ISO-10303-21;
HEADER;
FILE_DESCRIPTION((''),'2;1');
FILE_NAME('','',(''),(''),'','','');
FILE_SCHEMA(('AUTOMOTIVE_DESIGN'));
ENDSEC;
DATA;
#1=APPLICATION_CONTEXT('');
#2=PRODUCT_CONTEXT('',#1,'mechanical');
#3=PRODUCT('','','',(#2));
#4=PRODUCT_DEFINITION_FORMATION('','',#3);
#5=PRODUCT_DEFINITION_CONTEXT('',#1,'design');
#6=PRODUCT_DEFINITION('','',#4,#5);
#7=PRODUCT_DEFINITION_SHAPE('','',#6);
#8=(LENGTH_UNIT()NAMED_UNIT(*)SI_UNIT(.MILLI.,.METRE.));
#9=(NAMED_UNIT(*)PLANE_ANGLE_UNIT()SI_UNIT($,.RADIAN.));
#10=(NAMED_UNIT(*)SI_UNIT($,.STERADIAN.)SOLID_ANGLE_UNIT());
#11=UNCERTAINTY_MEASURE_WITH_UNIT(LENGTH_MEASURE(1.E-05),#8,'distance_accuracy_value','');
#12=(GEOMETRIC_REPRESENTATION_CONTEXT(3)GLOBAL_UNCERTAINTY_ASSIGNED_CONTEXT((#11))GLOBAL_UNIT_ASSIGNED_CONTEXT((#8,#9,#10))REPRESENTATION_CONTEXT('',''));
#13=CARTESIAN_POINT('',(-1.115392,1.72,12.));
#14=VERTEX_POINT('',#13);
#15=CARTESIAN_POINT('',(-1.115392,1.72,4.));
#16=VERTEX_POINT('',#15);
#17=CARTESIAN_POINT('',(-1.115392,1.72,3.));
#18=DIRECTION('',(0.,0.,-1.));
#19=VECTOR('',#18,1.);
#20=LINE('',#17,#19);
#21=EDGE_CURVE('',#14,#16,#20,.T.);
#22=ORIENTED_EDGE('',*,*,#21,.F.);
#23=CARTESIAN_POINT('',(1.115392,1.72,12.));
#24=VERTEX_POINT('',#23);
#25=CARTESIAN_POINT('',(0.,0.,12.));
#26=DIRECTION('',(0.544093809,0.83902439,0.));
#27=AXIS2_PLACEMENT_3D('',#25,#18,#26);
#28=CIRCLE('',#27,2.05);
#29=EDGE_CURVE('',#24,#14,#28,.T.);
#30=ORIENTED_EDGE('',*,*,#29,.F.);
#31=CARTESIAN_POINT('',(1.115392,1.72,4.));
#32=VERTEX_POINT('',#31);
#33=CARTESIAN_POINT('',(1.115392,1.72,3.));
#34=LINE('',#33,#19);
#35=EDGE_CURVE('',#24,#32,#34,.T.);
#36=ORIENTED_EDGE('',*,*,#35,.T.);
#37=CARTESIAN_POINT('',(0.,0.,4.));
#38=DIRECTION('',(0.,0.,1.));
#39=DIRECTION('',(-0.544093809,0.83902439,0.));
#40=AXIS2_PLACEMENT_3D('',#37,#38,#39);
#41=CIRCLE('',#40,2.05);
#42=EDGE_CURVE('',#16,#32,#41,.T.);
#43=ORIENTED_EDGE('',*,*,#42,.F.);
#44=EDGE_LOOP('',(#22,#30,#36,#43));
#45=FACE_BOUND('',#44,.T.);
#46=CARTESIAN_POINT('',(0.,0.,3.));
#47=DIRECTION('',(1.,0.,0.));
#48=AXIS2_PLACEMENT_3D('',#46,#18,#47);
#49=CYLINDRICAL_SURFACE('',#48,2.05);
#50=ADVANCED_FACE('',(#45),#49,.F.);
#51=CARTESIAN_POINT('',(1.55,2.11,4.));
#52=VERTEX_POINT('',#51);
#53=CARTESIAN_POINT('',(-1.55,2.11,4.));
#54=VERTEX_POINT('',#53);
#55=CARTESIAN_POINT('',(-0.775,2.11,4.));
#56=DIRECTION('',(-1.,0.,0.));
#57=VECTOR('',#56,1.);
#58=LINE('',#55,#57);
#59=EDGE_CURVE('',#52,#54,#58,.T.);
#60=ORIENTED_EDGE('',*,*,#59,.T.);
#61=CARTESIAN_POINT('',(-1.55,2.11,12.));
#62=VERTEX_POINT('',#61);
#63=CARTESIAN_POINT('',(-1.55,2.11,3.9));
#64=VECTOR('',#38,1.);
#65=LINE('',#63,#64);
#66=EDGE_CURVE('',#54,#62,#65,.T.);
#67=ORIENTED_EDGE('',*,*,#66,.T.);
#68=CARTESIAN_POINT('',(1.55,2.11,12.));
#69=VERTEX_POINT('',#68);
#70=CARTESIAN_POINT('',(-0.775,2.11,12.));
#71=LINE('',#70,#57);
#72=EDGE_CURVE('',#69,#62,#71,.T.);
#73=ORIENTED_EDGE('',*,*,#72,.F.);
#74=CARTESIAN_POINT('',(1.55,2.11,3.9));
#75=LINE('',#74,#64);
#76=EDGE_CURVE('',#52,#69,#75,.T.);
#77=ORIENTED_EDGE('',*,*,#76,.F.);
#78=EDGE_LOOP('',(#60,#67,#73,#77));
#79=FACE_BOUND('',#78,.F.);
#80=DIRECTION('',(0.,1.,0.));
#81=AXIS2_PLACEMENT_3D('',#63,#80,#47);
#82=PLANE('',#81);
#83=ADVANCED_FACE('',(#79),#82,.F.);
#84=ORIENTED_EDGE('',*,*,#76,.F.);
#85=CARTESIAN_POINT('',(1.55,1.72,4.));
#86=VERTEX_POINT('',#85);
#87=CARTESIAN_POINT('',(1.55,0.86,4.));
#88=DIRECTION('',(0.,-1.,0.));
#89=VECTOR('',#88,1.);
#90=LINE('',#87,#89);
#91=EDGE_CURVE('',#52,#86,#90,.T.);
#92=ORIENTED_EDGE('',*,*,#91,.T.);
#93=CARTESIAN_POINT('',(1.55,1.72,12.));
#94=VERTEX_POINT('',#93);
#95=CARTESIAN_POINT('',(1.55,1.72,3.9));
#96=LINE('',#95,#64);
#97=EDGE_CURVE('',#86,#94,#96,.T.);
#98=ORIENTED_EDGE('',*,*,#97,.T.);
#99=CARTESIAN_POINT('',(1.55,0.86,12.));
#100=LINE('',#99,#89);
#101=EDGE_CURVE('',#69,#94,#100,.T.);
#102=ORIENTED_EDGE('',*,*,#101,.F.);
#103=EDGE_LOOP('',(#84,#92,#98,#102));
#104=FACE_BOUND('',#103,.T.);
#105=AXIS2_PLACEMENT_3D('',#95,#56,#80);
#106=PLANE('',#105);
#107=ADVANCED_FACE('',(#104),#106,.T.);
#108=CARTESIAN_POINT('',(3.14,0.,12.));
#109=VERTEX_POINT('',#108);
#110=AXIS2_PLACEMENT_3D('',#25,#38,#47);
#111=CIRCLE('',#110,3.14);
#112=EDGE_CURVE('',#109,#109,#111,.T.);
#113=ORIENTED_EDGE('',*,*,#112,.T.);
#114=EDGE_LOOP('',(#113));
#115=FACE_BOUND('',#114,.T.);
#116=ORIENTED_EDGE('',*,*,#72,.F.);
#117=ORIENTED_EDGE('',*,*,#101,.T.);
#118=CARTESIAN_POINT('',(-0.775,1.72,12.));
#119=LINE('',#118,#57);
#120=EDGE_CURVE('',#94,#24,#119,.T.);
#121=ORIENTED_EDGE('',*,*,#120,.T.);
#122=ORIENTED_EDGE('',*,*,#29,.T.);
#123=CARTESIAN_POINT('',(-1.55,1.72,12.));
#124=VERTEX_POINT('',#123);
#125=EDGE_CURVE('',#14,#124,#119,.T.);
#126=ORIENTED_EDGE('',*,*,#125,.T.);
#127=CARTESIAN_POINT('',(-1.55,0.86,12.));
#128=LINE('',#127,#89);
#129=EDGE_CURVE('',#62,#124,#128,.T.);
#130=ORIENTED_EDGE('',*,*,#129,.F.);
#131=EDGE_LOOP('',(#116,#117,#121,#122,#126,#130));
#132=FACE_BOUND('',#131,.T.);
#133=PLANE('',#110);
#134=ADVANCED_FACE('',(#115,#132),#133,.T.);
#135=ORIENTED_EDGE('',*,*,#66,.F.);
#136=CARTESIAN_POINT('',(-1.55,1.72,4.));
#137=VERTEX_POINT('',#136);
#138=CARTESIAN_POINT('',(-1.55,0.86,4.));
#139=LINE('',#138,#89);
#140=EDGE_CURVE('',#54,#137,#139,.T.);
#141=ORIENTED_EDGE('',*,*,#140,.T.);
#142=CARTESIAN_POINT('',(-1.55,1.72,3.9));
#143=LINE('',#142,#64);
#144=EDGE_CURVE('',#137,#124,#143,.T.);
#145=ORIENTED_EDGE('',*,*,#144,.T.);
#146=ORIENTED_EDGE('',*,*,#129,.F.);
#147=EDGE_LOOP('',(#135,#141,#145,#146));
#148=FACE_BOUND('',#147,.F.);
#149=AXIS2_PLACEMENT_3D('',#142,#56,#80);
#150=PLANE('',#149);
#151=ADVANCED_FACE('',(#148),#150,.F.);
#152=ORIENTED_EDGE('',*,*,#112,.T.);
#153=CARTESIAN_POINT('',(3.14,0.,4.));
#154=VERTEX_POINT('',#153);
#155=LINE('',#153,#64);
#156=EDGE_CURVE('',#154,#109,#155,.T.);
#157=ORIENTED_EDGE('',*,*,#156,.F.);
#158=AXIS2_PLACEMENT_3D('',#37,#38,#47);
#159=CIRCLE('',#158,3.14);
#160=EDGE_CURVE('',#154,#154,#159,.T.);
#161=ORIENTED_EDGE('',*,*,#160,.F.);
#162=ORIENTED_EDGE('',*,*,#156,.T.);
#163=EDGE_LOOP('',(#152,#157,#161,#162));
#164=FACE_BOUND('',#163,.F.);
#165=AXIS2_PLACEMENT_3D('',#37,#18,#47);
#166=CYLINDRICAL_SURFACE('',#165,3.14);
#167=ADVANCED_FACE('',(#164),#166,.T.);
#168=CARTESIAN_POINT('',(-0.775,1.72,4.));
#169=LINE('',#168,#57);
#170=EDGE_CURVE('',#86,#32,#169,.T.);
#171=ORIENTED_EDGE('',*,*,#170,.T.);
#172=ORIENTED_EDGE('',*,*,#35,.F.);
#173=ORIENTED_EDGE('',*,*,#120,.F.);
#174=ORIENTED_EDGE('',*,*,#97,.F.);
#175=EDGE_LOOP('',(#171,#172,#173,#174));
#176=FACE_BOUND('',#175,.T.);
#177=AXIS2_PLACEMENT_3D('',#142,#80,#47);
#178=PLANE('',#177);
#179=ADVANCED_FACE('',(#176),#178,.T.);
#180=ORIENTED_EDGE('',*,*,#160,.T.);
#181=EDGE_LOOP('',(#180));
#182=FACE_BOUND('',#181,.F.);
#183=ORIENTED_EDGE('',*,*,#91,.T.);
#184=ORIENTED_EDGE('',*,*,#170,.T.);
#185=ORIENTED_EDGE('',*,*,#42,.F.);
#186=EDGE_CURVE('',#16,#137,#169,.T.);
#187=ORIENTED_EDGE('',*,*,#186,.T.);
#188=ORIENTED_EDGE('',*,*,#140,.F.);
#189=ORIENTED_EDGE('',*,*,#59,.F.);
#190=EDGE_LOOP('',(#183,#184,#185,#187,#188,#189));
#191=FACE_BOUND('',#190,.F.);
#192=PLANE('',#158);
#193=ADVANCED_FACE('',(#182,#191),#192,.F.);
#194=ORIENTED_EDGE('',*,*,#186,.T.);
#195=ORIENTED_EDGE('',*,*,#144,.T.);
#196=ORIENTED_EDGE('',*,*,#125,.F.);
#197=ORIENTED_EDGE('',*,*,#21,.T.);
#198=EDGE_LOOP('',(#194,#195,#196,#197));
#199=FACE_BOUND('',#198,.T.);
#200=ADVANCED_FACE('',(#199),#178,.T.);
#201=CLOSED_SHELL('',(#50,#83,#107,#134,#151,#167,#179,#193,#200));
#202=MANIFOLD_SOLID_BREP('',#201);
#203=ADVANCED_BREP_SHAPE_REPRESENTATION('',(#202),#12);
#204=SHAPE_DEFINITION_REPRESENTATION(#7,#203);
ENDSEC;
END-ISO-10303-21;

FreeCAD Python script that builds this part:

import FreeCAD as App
import Part
import Sketcher
from FreeCAD import Vector
Q = App.Units.Quantity

doc = App.newDocument("Part")
body = doc.addObject("PartDesign::Body", "Body")

sketch1 = body.newObject("Sketcher::SketchObject", "Sketch")
sketch1.AttachmentSupport = (doc.getObject("XY_Plane"), [""])
sketch1.MapMode = "FlatFace"
sketch1.AttachmentOffset = App.Placement(Vector(0, 0, 4), App.Rotation())
sketch1.addGeometry(Part.Circle(Vector(0, 0, 0), Vector(0, 0, 1), 3.14), False)
sketch1.addConstraint([
    Sketcher.Constraint("Coincident", 0, 3, -1, 1),
    Sketcher.Constraint("Diameter", 0, Q("6.28 mm")),
])
pad1 = body.newObject("PartDesign::Pad", "Pad")
pad1.Profile = sketch1
pad1.Length = 8

sketch2 = body.newObject("Sketcher::SketchObject", "Sketch001")
sketch2.AttachmentSupport = (doc.getObject("XY_Plane"), [""])
sketch2.MapMode = "FlatFace"
sketch2.AttachmentOffset = App.Placement(Vector(0, 0, 3), App.Rotation())
sketch2.addGeometry(Part.Circle(Vector(0, 0, 0), Vector(0, 0, 1), 2.05), False)
sketch2.addConstraint([
    Sketcher.Constraint("Coincident", 0, 3, -1, 1),
    Sketcher.Constraint("Diameter", 0, Q("4.1 mm")),
])
pocket1 = body.newObject("PartDesign::Pocket", "Pocket")
pocket1.Profile = sketch2
pocket1.Length = 14
pocket1.Reversed = True

sketch3 = body.newObject("Sketcher::SketchObject", "Sketch002")
sketch3.AttachmentSupport = (doc.getObject("XY_Plane"), [""])
sketch3.MapMode = "FlatFace"
sketch3.AttachmentOffset = App.Placement(Vector(0, 0, 3.9), App.Rotation())
sketch3.addGeometry([
    Part.LineSegment(Vector(-1.55, 2.11, 0), Vector(-1.55, 1.72, 0)),
    Part.LineSegment(Vector(-1.55, 1.72, 0), Vector(1.55, 1.72, 0)),
    Part.LineSegment(Vector(1.55, 1.72, 0), Vector(1.55, 2.11, 0)),
    Part.LineSegment(Vector(1.55, 2.11, 0), Vector(-1.55, 2.11, 0)),
], False)
sketch3.addConstraint([
    Sketcher.Constraint("Coincident", 0, 2, 1, 1),
    Sketcher.Constraint("Coincident", 1, 2, 2, 1),
    Sketcher.Constraint("Coincident", 2, 2, 3, 1),
    Sketcher.Constraint("Coincident", 3, 2, 0, 1),
    Sketcher.Constraint("Vertical", 0),
    Sketcher.Constraint("Horizontal", 1),
    Sketcher.Constraint("Vertical", 2),
    Sketcher.Constraint("Horizontal", 3),
    Sketcher.Constraint("DistanceX", 1, 1, 1, 2, Q("3.1 mm")),
    Sketcher.Constraint("DistanceY", 0, 2, 0, 1, Q("0.39 mm")),
    Sketcher.Constraint("DistanceX", 0, 2, -1, 1, Q("1.55 mm")),
    Sketcher.Constraint("DistanceY", -1, 1, 0, 2, Q("1.72 mm")),
])
pocket2 = body.newObject("PartDesign::Pocket", "Pocket001")
pocket2.Profile = sketch3
pocket2.Length = 8.2
pocket2.Reversed = True

doc.recompute()
